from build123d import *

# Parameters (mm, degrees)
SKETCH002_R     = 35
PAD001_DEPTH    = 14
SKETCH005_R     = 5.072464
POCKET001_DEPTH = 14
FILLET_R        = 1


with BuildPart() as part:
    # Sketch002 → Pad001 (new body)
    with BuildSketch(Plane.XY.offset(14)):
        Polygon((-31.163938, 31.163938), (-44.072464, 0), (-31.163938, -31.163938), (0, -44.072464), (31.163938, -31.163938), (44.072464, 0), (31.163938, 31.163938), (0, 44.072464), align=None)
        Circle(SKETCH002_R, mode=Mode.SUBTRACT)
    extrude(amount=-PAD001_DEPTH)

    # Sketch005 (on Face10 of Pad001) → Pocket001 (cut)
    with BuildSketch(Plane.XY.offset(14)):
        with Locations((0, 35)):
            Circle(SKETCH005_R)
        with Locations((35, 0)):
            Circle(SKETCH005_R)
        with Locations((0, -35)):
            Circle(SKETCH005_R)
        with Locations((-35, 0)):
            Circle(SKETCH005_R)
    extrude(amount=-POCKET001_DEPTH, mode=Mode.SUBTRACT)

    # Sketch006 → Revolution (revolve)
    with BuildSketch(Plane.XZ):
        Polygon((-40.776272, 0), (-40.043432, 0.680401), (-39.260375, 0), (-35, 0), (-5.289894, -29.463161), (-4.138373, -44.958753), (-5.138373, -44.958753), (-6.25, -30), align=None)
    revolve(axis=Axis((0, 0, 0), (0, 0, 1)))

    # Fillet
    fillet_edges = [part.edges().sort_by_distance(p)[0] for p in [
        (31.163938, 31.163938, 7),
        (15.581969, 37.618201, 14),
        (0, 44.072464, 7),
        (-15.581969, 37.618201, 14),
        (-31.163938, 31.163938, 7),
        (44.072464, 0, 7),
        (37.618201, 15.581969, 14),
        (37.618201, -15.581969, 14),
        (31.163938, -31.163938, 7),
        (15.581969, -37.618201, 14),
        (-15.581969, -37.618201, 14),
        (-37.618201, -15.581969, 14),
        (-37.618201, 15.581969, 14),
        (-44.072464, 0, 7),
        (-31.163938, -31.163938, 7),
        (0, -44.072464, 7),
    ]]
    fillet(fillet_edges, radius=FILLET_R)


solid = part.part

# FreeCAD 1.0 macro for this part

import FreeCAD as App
import Part
import Sketcher
from FreeCAD import Vector
Q = App.Units.Quantity


def edges_at(feature, points):
    """Names of the edges that pass closest to the given points."""
    edges = feature.Shape.Edges
    near = lambda p: min(range(len(edges)), key=lambda i: edges[i].distToShape(Part.Vertex(*p))[0])
    return sorted({f"Edge{near(p) + 1}" for p in points})

doc = App.newDocument("Part")
body = doc.addObject("PartDesign::Body", "Body")

# Sketch on XY plane
sketch1 = body.newObject("Sketcher::SketchObject", "Sketch")
sketch1.AttachmentSupport = (doc.getObject("XY_Plane"), [""])
sketch1.MapMode = "FlatFace"
sketch1.AttachmentOffset = App.Placement(Vector(0, 0, 14), App.Rotation())
sketch1.addGeometry([
    Part.LineSegment(Vector(-31, 31, 0), Vector(-44, 0, 0)),  # 0
    Part.LineSegment(Vector(-44, 0, 0), Vector(-31, -31, 0)),  # 1
    Part.LineSegment(Vector(-31, -31, 0), Vector(0, -44, 0)),  # 2
    Part.LineSegment(Vector(0, -44, 0), Vector(31, -31, 0)),  # 3
    Part.LineSegment(Vector(31, -31, 0), Vector(44, 0, 0)),  # 4
    Part.LineSegment(Vector(44, 0, 0), Vector(31, 31, 0)),  # 5
    Part.LineSegment(Vector(31, 31, 0), Vector(0, 44, 0)),  # 6
    Part.LineSegment(Vector(0, 44, 0), Vector(-31, 31, 0)),  # 7
    Part.Circle(Vector(0, 0, 0), Vector(0, 0, 1), 35),  # 8
], False)
sketch1.addConstraint([
    Sketcher.Constraint("Coincident", 0, 2, 1, 1),
    Sketcher.Constraint("Coincident", 1, 2, 2, 1),
    Sketcher.Constraint("Coincident", 2, 2, 3, 1),
    Sketcher.Constraint("Coincident", 3, 2, 4, 1),
    Sketcher.Constraint("Coincident", 4, 2, 5, 1),
    Sketcher.Constraint("Coincident", 5, 2, 6, 1),
    Sketcher.Constraint("Coincident", 6, 2, 7, 1),
    Sketcher.Constraint("Coincident", 7, 2, 0, 1),
    Sketcher.Constraint("Coincident", 8, 3, -1, 1),
    Sketcher.Constraint("Symmetric", 0, 2, 4, 2, -1, 1),
    Sketcher.Constraint("Symmetric", 1, 2, 5, 2, -1, 1),
    Sketcher.Constraint("Symmetric", 2, 2, 6, 2, -1, 1),
    Sketcher.Constraint("Symmetric", 3, 2, 7, 2, -1, 1),
    Sketcher.Constraint("Symmetric", 1, 2, 3, 2, -2),
    Sketcher.Constraint("PointOnObject", 0, 2, -1),
    Sketcher.Constraint("PointOnObject", 2, 2, -2),
    Sketcher.Constraint("Perpendicular", 0, 2),
    Sketcher.Constraint("Equal", 1, 2),
    Sketcher.Constraint("Diameter", 8, Q("70 mm")),
    Sketcher.Constraint("Angle", 0, Q("-112.5 deg")),
    Sketcher.Constraint("DistanceX", 0, 2, 3, 2, Q("75.236402 mm")),
])
pad1 = body.newObject("PartDesign::Pad", "Pad")
pad1.Profile = sketch1
pad1.Length = 14
pad1.Reversed = True

# Sketch on XY plane
sketch2 = body.newObject("Sketcher::SketchObject", "Sketch001")
sketch2.AttachmentSupport = (doc.getObject("XY_Plane"), [""])
sketch2.MapMode = "FlatFace"
sketch2.AttachmentOffset = App.Placement(Vector(0, 0, 14), App.Rotation())
sketch2.addGeometry([
    Part.Circle(Vector(0, 35, 0), Vector(0, 0, 1), 5),
    Part.Circle(Vector(35, 0, 0), Vector(0, 0, 1), 5),
    Part.Circle(Vector(0, -35, 0), Vector(0, 0, 1), 5),
    Part.Circle(Vector(-35, 0, 0), Vector(0, 0, 1), 5),
], False)
sketch2.addConstraint([
    Sketcher.Constraint("Equal", 0, 1),
    Sketcher.Constraint("Equal", 1, 2),
    Sketcher.Constraint("Equal", 2, 3),
    Sketcher.Constraint("Symmetric", 0, 3, 2, 3, -1, 1),
    Sketcher.Constraint("Symmetric", 1, 3, 3, 3, -1, 1),
    Sketcher.Constraint("PointOnObject", 0, 3, -2),
    Sketcher.Constraint("PointOnObject", 1, 3, -1),
    Sketcher.Constraint("DistanceY", -1, 1, 0, 3, Q("35 mm")),
    Sketcher.Constraint("DistanceX", -1, 1, 1, 3, Q("35 mm")),
    Sketcher.Constraint("Diameter", 0, Q("10.144928 mm")),
])
pocket1 = body.newObject("PartDesign::Pocket", "Pocket")
pocket1.Profile = sketch2
pocket1.Length = 14

# Sketch on XZ plane
sketch3 = body.newObject("Sketcher::SketchObject", "Sketch002")
sketch3.AttachmentSupport = (doc.getObject("XZ_Plane"), [""])
sketch3.MapMode = "FlatFace"
sketch3.addGeometry([
    Part.LineSegment(Vector(-40, 0.7, 0), Vector(-40.8, 0, 0)),  # 0
    Part.LineSegment(Vector(-40.8, 0, 0), Vector(-6.2, -30, 0)),  # 1
    Part.LineSegment(Vector(-6.2, -30, 0), Vector(-5.1, -45, 0)),  # 2
    Part.LineSegment(Vector(-5.1, -45, 0), Vector(-4.1, -45, 0)),  # 3
    Part.LineSegment(Vector(-4.1, -45, 0), Vector(-5.3, -29.5, 0)),  # 4
    Part.LineSegment(Vector(-5.3, -29.5, 0), Vector(-35, 0, 0)),  # 5
    Part.LineSegment(Vector(-35, 0, 0), Vector(-39.3, 0, 0)),  # 6
    Part.LineSegment(Vector(-39.3, 0, 0), Vector(-40, 0.7, 0)),  # 7
], False)
sketch3.addConstraint([
    Sketcher.Constraint("Coincident", 0, 2, 1, 1),
    Sketcher.Constraint("Coincident", 1, 2, 2, 1),
    Sketcher.Constraint("Coincident", 2, 2, 3, 1),
    Sketcher.Constraint("Coincident", 3, 2, 4, 1),
    Sketcher.Constraint("Coincident", 4, 2, 5, 1),
    Sketcher.Constraint("Coincident", 5, 2, 6, 1),
    Sketcher.Constraint("Coincident", 6, 2, 7, 1),
    Sketcher.Constraint("Coincident", 7, 2, 0, 1),
    Sketcher.Constraint("Horizontal", 3),
    Sketcher.Constraint("Horizontal", 6),
    Sketcher.Constraint("PointOnObject", 0, 2, -1),
    Sketcher.Constraint("PointOnObject", 5, 2, -1),
    Sketcher.Constraint("Parallel", 2, 4),
    Sketcher.Constraint("Parallel", 1, 7),
    Sketcher.Constraint("DistanceX", 3, 1, 3, 2, Q("1 mm")),
    Sketcher.Constraint("Distance", 0, Q("1 mm")),
    Sketcher.Constraint("Distance", 2, Q("15 mm")),
    Sketcher.Constraint("DistanceY", 1, 2, -1, 1, Q("30 mm")),
    Sketcher.Constraint("DistanceX", 5, 2, -1, 1, Q("35 mm")),
    Sketcher.Constraint("Angle", 2, Q("-85.750001 deg")),
    Sketcher.Constraint("DistanceX", 1, 2, -1, 1, Q("6.25 mm")),
    Sketcher.Constraint("DistanceY", -1, 1, 7, 2, Q("0.680401 mm")),
    Sketcher.Constraint("DistanceX", 0, 2, 2, 2, Q("35.637899 mm")),
    Sketcher.Constraint("Distance", 4, Q("15.538319 mm")),
])
revolution = body.newObject("PartDesign::Revolution", "Revolution")
revolution.Profile = sketch3
revolution.ReferenceAxis = (sketch3, ["V_Axis"])
revolution.Angle = 360
doc.recompute()

fillet = body.newObject("PartDesign::Fillet", "Fillet")
fillet.Base = (revolution, edges_at(revolution, [
    (31.164, 31.164, 7),
    (15.582, 37.618, 14),
    (0, 44.072, 7),
    (-15.582, 37.618, 14),
    (-31.164, 31.164, 7),
    (44.072, 0, 7),
    (37.618, 15.582, 14),
    (37.618, -15.582, 14),
    (31.164, -31.164, 7),
    (15.582, -37.618, 14),
    (-15.582, -37.618, 14),
    (-37.618, -15.582, 14),
    (-37.618, 15.582, 14),
    (-44.072, 0, 7),
    (-31.164, -31.164, 7),
    (0, -44.072, 7),
]))
fillet.Radius = 1

doc.recompute()
